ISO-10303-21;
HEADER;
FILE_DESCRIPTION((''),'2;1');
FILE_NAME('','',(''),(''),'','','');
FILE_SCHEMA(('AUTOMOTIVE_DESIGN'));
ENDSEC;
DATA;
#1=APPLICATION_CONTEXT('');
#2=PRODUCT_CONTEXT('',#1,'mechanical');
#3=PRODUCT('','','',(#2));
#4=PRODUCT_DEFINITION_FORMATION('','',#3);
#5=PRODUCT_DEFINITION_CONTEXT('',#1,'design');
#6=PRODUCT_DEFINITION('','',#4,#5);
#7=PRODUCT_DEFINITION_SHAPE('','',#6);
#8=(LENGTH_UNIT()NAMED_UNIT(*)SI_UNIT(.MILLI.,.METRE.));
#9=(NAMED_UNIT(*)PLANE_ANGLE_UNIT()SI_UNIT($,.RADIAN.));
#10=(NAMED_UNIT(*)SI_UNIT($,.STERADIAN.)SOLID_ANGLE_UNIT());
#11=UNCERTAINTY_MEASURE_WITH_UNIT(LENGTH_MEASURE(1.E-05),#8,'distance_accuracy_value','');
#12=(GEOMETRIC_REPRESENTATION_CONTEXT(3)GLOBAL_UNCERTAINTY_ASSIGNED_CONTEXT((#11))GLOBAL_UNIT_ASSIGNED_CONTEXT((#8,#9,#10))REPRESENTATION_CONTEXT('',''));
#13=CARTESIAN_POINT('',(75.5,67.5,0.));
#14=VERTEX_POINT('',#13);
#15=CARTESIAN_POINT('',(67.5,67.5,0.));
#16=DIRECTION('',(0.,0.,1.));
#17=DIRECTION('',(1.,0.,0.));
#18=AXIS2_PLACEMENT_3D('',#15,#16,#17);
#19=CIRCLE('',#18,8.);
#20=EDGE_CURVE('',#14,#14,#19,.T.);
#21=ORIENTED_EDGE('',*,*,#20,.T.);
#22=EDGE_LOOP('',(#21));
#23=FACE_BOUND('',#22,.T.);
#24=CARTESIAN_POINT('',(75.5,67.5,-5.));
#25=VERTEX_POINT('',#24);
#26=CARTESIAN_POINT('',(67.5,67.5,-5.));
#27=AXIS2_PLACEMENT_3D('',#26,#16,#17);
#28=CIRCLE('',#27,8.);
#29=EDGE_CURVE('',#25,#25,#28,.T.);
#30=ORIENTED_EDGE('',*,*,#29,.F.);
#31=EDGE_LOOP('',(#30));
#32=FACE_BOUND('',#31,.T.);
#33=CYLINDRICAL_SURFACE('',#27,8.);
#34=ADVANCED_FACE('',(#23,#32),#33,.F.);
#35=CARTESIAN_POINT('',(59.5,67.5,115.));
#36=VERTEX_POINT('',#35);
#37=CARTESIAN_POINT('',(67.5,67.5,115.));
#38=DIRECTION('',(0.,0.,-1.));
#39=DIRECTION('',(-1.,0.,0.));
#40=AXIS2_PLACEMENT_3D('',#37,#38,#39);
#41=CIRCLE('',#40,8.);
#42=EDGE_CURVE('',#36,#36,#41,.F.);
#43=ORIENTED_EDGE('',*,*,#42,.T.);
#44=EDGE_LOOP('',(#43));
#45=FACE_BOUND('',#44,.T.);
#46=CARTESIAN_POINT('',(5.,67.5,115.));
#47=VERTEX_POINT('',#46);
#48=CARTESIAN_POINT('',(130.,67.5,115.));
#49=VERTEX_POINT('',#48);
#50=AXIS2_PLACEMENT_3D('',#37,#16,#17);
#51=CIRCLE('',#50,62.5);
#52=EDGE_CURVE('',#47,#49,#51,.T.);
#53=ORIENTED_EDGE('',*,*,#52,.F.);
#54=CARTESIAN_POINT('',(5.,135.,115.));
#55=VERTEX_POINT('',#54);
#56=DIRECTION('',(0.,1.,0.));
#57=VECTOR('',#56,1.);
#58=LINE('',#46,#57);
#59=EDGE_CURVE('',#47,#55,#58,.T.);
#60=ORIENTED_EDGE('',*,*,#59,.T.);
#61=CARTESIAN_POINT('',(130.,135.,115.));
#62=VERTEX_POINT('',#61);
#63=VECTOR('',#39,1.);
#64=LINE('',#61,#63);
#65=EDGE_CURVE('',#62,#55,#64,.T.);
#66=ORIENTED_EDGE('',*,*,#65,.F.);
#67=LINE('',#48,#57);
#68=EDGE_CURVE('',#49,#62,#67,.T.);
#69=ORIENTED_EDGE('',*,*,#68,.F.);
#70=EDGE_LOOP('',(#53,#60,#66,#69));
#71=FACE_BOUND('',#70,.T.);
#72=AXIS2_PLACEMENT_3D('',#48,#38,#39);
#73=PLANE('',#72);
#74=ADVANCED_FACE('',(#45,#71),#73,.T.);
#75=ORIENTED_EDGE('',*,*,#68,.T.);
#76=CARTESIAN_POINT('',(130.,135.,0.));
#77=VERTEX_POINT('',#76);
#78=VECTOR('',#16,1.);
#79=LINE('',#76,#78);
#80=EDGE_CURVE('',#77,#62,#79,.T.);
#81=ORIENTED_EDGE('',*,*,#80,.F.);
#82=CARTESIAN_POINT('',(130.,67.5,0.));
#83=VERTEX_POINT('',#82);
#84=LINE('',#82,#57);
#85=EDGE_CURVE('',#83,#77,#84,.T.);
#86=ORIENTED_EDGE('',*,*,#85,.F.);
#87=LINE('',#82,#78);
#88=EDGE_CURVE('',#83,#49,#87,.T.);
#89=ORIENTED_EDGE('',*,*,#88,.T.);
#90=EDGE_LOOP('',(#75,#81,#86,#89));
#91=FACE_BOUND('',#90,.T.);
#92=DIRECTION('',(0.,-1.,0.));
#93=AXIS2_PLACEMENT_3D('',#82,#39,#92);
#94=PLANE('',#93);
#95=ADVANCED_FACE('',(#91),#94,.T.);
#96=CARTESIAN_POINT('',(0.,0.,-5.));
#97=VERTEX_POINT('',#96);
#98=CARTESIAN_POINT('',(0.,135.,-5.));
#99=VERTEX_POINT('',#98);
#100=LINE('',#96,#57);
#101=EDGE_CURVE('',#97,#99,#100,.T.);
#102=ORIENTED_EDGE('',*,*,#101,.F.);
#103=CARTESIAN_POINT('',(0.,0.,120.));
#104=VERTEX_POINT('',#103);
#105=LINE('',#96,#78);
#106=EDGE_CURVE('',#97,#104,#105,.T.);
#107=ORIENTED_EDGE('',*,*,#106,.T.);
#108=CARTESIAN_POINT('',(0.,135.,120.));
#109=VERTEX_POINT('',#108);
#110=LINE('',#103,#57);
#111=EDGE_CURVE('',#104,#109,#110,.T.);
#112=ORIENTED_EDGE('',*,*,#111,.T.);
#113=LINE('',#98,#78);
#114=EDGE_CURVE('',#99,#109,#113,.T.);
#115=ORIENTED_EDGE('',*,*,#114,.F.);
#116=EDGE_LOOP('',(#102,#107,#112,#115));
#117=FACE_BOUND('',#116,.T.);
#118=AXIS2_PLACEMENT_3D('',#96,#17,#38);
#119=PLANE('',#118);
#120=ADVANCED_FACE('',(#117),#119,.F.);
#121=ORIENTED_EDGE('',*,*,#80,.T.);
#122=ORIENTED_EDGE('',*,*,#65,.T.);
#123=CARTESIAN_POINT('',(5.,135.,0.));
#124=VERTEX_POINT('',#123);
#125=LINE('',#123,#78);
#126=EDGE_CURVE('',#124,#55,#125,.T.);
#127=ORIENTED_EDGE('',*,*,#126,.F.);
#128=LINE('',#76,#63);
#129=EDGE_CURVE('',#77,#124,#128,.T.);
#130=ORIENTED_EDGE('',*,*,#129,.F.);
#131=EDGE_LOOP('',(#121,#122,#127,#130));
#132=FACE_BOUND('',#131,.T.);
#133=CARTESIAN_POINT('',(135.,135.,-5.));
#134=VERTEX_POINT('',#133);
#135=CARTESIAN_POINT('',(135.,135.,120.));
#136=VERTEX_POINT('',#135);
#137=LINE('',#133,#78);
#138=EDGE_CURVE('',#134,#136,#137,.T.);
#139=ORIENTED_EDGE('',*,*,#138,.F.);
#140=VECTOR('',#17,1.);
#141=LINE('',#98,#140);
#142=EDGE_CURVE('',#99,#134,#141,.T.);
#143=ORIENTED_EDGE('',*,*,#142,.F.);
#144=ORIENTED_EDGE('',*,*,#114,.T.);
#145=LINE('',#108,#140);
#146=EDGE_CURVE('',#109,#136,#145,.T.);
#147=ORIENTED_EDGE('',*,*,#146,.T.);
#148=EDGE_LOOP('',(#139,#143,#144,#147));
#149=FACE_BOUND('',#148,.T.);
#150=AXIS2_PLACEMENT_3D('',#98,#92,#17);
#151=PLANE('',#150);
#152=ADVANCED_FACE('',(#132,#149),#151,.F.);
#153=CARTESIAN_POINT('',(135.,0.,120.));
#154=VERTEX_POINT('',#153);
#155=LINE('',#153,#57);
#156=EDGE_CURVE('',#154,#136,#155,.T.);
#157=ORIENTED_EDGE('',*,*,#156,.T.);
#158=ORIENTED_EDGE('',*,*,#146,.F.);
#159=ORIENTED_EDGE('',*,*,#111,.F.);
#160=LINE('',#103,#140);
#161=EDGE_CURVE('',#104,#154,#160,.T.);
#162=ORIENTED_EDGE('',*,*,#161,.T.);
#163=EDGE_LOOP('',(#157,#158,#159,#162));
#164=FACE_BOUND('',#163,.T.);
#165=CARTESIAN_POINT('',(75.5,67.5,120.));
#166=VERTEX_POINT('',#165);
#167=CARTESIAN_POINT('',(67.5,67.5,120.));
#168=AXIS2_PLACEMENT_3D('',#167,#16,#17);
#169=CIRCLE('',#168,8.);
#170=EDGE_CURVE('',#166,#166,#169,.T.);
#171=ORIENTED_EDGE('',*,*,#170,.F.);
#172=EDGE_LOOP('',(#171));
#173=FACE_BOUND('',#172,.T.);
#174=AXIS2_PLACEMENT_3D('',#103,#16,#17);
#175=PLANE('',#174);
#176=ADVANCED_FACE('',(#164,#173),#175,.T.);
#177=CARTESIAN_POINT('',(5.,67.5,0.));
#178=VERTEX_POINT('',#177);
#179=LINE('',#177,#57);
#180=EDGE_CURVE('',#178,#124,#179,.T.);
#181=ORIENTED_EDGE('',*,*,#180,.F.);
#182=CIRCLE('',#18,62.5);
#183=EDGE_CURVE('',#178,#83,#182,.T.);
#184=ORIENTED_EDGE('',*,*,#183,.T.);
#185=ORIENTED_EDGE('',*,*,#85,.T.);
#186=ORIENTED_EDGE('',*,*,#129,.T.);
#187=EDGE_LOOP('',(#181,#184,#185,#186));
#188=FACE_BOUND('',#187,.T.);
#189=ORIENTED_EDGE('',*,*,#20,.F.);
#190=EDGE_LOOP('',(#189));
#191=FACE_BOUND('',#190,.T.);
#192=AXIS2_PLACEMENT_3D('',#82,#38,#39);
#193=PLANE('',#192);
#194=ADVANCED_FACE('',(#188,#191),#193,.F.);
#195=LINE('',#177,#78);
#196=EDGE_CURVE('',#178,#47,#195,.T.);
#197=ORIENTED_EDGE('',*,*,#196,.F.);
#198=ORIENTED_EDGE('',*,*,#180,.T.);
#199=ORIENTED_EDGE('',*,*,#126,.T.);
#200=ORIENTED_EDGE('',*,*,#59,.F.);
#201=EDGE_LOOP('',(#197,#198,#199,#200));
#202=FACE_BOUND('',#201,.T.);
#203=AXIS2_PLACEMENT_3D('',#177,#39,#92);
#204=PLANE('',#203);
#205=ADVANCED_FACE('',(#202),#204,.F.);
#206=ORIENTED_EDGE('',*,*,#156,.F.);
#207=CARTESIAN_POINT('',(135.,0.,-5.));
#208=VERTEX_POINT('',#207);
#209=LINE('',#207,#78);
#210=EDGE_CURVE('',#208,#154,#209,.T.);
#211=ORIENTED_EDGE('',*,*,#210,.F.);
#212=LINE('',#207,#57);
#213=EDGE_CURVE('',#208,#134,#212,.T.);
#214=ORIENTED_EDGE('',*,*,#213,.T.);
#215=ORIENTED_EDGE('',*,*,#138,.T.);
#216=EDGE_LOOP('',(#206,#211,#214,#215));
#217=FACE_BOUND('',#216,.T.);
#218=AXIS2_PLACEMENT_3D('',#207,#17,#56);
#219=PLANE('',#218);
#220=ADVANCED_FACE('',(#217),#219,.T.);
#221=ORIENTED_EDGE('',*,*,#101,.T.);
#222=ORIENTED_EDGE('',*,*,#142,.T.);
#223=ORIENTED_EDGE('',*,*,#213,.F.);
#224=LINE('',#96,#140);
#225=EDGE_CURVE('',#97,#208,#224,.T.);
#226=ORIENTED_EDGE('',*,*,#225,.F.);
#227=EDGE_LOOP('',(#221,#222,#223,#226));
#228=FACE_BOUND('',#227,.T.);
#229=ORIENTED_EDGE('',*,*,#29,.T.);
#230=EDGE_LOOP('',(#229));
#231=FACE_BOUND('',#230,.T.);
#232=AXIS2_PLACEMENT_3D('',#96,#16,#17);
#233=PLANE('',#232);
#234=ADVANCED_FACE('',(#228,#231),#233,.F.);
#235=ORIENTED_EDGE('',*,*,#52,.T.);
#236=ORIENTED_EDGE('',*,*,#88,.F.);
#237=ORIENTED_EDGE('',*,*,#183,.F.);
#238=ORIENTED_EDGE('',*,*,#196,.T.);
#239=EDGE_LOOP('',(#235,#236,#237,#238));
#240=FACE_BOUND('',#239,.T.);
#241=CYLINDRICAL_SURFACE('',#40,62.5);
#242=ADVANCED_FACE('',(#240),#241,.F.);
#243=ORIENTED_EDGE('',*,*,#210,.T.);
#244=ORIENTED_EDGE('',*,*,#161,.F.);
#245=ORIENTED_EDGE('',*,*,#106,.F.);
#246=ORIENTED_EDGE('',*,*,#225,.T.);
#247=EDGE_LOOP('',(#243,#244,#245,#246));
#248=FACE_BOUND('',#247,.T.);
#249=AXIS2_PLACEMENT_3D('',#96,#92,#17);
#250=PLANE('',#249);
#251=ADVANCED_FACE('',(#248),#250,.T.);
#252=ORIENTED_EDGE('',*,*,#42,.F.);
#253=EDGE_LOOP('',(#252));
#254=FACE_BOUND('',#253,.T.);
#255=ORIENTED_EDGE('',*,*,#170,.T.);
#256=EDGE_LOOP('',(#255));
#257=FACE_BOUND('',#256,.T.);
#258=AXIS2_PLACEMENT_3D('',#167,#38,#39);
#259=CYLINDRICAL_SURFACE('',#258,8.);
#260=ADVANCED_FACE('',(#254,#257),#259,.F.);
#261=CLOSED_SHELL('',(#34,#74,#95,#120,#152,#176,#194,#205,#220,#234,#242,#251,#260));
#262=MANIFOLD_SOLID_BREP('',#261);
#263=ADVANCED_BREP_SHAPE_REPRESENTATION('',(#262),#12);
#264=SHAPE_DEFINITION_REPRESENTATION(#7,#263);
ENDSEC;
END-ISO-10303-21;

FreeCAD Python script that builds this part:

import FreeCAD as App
import Part
import Sketcher
Q = App.Units.Quantity

doc = App.newDocument("Part")
params = doc.addObject("Spreadsheet::Sheet", "Params")
for row, (alias, value) in enumerate([
    ("sketch1_diameter", "16 mm"),
    ("sketch1_width", "135 mm"),
    ("pad1_length", "5 mm"),
    ("sketch2_width", "135 mm"),
    ("pad2_length", "120 mm"),
    ("sketch3_width", "125 mm"),
    ("sketch3_height", "115 mm"),
    ("pocket1_length", "67.5 mm"),
    ("sketch4_diameter", "125 mm"),
    ("pocket2_length", "115 mm"),
    ("sketch5_diameter", "16 mm"),
    ("pocket3_length", "120 mm"),
], start=1):
    params.set(f"A{row}", alias)
    params.set(f"B{row}", "=" + value)
    params.setAlias(f"B{row}", alias)

body = doc.addObject("PartDesign::Body", "Body")

# Sketch on XY plane
sketch1 = body.newObject("Sketcher::SketchObject", "Sketch")
sketch1.AttachmentSupport = (doc.getObject("XY_Plane"), [""])
sketch1.MapMode = "FlatFace"
sketch1.addGeometry([
    Part.LineSegment(App.Vector(0, 135, 0), App.Vector(0, 0, 0)),  # 0
    Part.LineSegment(App.Vector(0, 0, 0), App.Vector(135, 0, 0)),  # 1
    Part.LineSegment(App.Vector(135, 0, 0), App.Vector(135, 135, 0)),  # 2
    Part.LineSegment(App.Vector(135, 135, 0), App.Vector(0, 135, 0)),  # 3
    Part.Circle(App.Vector(68, 68, 0), App.Vector(0, 0, 1), 8),  # 4
], False)
sketch1.addConstraint([
    Sketcher.Constraint("Coincident", 0, 2, 1, 1),
    Sketcher.Constraint("Coincident", 1, 2, 2, 1),
    Sketcher.Constraint("Coincident", 2, 2, 3, 1),
    Sketcher.Constraint("Coincident", 3, 2, 0, 1),
    Sketcher.Constraint("Vertical", 0),
    Sketcher.Constraint("Horizontal", 1),
    Sketcher.Constraint("Vertical", 2),
    Sketcher.Constraint("Horizontal", 3),
    Sketcher.Constraint("Coincident", 0, 2, -1, 1),
    Sketcher.Constraint("Equal", 3, 0),
    Sketcher.Constraint("Diameter", 4, Q("16 mm")),
    Sketcher.Constraint("DistanceX", 1, 1, 1, 2, Q("135 mm")),
    Sketcher.Constraint("DistanceX", -1, 1, 4, 3, Q("67.5 mm")),
    Sketcher.Constraint("DistanceY", -1, 1, 4, 3, Q("67.5 mm")),
])
sketch1.setExpression("Constraints[10]", "Params.sketch1_diameter")
sketch1.setExpression("Constraints[11]", "Params.sketch1_width")
pad1 = body.newObject("PartDesign::Pad", "Pad")
pad1.Profile = sketch1
pad1.setExpression("Length", "Params.pad1_length")
pad1.Reversed = True

# Sketch on XY plane
sketch2 = body.newObject("Sketcher::SketchObject", "Sketch001")
sketch2.AttachmentSupport = (doc.getObject("XY_Plane"), [""])
sketch2.MapMode = "FlatFace"
sketch2.addGeometry([
    Part.LineSegment(App.Vector(0, 135, 0), App.Vector(0, 0, 0)),
    Part.LineSegment(App.Vector(0, 0, 0), App.Vector(135, 0, 0)),
    Part.LineSegment(App.Vector(135, 0, 0), App.Vector(135, 135, 0)),
    Part.LineSegment(App.Vector(135, 135, 0), App.Vector(0, 135, 0)),
], False)
sketch2.addConstraint([
    Sketcher.Constraint("Coincident", 0, 2, 1, 1),
    Sketcher.Constraint("Coincident", 1, 2, 2, 1),
    Sketcher.Constraint("Coincident", 2, 2, 3, 1),
    Sketcher.Constraint("Coincident", 3, 2, 0, 1),
    Sketcher.Constraint("Vertical", 0),
    Sketcher.Constraint("Horizontal", 1),
    Sketcher.Constraint("Vertical", 2),
    Sketcher.Constraint("Horizontal", 3),
    Sketcher.Constraint("Coincident", 0, 2, -1, 1),
    Sketcher.Constraint("Equal", 3, 0),
    Sketcher.Constraint("DistanceX", 1, 1, 1, 2, Q("135 mm")),
])
sketch2.setExpression("Constraints[10]", "Params.sketch2_width")
pad2 = body.newObject("PartDesign::Pad", "Pad001")
pad2.Profile = sketch2
pad2.setExpression("Length", "Params.pad2_length")

# Sketch on XZ plane
sketch3 = body.newObject("Sketcher::SketchObject", "Sketch002")
sketch3.AttachmentSupport = (doc.getObject("XZ_Plane"), [""])
sketch3.MapMode = "FlatFace"
sketch3.AttachmentOffset = App.Placement(App.Vector(0, 0, -135), App.Rotation())
sketch3.addGeometry([
    Part.LineSegment(App.Vector(5, 0, 0), App.Vector(5, 115, 0)),
    Part.LineSegment(App.Vector(5, 115, 0), App.Vector(130, 115, 0)),
    Part.LineSegment(App.Vector(130, 115, 0), App.Vector(130, 0, 0)),
    Part.LineSegment(App.Vector(130, 0, 0), App.Vector(5, 0, 0)),
], False)
sketch3.addConstraint([
    Sketcher.Constraint("Coincident", 0, 2, 1, 1),
    Sketcher.Constraint("Coincident", 1, 2, 2, 1),
    Sketcher.Constraint("Coincident", 2, 2, 3, 1),
    Sketcher.Constraint("Coincident", 3, 2, 0, 1),
    Sketcher.Constraint("Vertical", 0),
    Sketcher.Constraint("Horizontal", 1),
    Sketcher.Constraint("Vertical", 2),
    Sketcher.Constraint("Horizontal", 3),
    Sketcher.Constraint("PointOnObject", 2, 2, -1),
    Sketcher.Constraint("DistanceX", 1, 1, 1, 2, Q("125 mm")),
    Sketcher.Constraint("DistanceY", 0, 1, 0, 2, Q("115 mm")),
    Sketcher.Constraint("DistanceX", -1, 1, 0, 2, Q("5 mm")),
])
sketch3.setExpression("Constraints[9]", "Params.sketch3_width")
sketch3.setExpression("Constraints[10]", "Params.sketch3_height")
pocket1 = body.newObject("PartDesign::Pocket", "Pocket")
pocket1.Profile = sketch3
pocket1.setExpression("Length", "Params.pocket1_length")
pocket1.Reversed = True

# Sketch on XY plane
sketch4 = body.newObject("Sketcher::SketchObject", "Sketch003")
sketch4.AttachmentSupport = (doc.getObject("XY_Plane"), [""])
sketch4.MapMode = "FlatFace"
sketch4.addGeometry(Part.Circle(App.Vector(68, 68, 0), App.Vector(0, 0, 1), 62), False)
sketch4.addConstraint([
    Sketcher.Constraint("Diameter", 0, Q("125 mm")),
    Sketcher.Constraint("DistanceX", -1, 1, 0, 3, Q("67.5 mm")),
    Sketcher.Constraint("DistanceY", -1, 1, 0, 3, Q("67.5 mm")),
])
sketch4.setExpression("Constraints[0]", "Params.sketch4_diameter")
pocket2 = body.newObject("PartDesign::Pocket", "Pocket001")
pocket2.Profile = sketch4
pocket2.setExpression("Length", "Params.pocket2_length")
pocket2.Reversed = True

# Sketch on XY plane
sketch5 = body.newObject("Sketcher::SketchObject", "Sketch004")
sketch5.AttachmentSupport = (doc.getObject("XY_Plane"), [""])
sketch5.MapMode = "FlatFace"
sketch5.AttachmentOffset = App.Placement(App.Vector(0, 0, 120), App.Rotation())
sketch5.addGeometry(Part.Circle(App.Vector(68, 68, 0), App.Vector(0, 0, 1), 8), False)
sketch5.addConstraint([
    Sketcher.Constraint("Diameter", 0, Q("16 mm")),
    Sketcher.Constraint("DistanceX", -1, 1, 0, 3, Q("67.5 mm")),
    Sketcher.Constraint("DistanceY", -1, 1, 0, 3, Q("67.5 mm")),
])
sketch5.setExpression("Constraints[0]", "Params.sketch5_diameter")
pocket3 = body.newObject("PartDesign::Pocket", "Pocket002")
pocket3.Profile = sketch5
pocket3.setExpression("Length", "Params.pocket3_length")

doc.recompute()
